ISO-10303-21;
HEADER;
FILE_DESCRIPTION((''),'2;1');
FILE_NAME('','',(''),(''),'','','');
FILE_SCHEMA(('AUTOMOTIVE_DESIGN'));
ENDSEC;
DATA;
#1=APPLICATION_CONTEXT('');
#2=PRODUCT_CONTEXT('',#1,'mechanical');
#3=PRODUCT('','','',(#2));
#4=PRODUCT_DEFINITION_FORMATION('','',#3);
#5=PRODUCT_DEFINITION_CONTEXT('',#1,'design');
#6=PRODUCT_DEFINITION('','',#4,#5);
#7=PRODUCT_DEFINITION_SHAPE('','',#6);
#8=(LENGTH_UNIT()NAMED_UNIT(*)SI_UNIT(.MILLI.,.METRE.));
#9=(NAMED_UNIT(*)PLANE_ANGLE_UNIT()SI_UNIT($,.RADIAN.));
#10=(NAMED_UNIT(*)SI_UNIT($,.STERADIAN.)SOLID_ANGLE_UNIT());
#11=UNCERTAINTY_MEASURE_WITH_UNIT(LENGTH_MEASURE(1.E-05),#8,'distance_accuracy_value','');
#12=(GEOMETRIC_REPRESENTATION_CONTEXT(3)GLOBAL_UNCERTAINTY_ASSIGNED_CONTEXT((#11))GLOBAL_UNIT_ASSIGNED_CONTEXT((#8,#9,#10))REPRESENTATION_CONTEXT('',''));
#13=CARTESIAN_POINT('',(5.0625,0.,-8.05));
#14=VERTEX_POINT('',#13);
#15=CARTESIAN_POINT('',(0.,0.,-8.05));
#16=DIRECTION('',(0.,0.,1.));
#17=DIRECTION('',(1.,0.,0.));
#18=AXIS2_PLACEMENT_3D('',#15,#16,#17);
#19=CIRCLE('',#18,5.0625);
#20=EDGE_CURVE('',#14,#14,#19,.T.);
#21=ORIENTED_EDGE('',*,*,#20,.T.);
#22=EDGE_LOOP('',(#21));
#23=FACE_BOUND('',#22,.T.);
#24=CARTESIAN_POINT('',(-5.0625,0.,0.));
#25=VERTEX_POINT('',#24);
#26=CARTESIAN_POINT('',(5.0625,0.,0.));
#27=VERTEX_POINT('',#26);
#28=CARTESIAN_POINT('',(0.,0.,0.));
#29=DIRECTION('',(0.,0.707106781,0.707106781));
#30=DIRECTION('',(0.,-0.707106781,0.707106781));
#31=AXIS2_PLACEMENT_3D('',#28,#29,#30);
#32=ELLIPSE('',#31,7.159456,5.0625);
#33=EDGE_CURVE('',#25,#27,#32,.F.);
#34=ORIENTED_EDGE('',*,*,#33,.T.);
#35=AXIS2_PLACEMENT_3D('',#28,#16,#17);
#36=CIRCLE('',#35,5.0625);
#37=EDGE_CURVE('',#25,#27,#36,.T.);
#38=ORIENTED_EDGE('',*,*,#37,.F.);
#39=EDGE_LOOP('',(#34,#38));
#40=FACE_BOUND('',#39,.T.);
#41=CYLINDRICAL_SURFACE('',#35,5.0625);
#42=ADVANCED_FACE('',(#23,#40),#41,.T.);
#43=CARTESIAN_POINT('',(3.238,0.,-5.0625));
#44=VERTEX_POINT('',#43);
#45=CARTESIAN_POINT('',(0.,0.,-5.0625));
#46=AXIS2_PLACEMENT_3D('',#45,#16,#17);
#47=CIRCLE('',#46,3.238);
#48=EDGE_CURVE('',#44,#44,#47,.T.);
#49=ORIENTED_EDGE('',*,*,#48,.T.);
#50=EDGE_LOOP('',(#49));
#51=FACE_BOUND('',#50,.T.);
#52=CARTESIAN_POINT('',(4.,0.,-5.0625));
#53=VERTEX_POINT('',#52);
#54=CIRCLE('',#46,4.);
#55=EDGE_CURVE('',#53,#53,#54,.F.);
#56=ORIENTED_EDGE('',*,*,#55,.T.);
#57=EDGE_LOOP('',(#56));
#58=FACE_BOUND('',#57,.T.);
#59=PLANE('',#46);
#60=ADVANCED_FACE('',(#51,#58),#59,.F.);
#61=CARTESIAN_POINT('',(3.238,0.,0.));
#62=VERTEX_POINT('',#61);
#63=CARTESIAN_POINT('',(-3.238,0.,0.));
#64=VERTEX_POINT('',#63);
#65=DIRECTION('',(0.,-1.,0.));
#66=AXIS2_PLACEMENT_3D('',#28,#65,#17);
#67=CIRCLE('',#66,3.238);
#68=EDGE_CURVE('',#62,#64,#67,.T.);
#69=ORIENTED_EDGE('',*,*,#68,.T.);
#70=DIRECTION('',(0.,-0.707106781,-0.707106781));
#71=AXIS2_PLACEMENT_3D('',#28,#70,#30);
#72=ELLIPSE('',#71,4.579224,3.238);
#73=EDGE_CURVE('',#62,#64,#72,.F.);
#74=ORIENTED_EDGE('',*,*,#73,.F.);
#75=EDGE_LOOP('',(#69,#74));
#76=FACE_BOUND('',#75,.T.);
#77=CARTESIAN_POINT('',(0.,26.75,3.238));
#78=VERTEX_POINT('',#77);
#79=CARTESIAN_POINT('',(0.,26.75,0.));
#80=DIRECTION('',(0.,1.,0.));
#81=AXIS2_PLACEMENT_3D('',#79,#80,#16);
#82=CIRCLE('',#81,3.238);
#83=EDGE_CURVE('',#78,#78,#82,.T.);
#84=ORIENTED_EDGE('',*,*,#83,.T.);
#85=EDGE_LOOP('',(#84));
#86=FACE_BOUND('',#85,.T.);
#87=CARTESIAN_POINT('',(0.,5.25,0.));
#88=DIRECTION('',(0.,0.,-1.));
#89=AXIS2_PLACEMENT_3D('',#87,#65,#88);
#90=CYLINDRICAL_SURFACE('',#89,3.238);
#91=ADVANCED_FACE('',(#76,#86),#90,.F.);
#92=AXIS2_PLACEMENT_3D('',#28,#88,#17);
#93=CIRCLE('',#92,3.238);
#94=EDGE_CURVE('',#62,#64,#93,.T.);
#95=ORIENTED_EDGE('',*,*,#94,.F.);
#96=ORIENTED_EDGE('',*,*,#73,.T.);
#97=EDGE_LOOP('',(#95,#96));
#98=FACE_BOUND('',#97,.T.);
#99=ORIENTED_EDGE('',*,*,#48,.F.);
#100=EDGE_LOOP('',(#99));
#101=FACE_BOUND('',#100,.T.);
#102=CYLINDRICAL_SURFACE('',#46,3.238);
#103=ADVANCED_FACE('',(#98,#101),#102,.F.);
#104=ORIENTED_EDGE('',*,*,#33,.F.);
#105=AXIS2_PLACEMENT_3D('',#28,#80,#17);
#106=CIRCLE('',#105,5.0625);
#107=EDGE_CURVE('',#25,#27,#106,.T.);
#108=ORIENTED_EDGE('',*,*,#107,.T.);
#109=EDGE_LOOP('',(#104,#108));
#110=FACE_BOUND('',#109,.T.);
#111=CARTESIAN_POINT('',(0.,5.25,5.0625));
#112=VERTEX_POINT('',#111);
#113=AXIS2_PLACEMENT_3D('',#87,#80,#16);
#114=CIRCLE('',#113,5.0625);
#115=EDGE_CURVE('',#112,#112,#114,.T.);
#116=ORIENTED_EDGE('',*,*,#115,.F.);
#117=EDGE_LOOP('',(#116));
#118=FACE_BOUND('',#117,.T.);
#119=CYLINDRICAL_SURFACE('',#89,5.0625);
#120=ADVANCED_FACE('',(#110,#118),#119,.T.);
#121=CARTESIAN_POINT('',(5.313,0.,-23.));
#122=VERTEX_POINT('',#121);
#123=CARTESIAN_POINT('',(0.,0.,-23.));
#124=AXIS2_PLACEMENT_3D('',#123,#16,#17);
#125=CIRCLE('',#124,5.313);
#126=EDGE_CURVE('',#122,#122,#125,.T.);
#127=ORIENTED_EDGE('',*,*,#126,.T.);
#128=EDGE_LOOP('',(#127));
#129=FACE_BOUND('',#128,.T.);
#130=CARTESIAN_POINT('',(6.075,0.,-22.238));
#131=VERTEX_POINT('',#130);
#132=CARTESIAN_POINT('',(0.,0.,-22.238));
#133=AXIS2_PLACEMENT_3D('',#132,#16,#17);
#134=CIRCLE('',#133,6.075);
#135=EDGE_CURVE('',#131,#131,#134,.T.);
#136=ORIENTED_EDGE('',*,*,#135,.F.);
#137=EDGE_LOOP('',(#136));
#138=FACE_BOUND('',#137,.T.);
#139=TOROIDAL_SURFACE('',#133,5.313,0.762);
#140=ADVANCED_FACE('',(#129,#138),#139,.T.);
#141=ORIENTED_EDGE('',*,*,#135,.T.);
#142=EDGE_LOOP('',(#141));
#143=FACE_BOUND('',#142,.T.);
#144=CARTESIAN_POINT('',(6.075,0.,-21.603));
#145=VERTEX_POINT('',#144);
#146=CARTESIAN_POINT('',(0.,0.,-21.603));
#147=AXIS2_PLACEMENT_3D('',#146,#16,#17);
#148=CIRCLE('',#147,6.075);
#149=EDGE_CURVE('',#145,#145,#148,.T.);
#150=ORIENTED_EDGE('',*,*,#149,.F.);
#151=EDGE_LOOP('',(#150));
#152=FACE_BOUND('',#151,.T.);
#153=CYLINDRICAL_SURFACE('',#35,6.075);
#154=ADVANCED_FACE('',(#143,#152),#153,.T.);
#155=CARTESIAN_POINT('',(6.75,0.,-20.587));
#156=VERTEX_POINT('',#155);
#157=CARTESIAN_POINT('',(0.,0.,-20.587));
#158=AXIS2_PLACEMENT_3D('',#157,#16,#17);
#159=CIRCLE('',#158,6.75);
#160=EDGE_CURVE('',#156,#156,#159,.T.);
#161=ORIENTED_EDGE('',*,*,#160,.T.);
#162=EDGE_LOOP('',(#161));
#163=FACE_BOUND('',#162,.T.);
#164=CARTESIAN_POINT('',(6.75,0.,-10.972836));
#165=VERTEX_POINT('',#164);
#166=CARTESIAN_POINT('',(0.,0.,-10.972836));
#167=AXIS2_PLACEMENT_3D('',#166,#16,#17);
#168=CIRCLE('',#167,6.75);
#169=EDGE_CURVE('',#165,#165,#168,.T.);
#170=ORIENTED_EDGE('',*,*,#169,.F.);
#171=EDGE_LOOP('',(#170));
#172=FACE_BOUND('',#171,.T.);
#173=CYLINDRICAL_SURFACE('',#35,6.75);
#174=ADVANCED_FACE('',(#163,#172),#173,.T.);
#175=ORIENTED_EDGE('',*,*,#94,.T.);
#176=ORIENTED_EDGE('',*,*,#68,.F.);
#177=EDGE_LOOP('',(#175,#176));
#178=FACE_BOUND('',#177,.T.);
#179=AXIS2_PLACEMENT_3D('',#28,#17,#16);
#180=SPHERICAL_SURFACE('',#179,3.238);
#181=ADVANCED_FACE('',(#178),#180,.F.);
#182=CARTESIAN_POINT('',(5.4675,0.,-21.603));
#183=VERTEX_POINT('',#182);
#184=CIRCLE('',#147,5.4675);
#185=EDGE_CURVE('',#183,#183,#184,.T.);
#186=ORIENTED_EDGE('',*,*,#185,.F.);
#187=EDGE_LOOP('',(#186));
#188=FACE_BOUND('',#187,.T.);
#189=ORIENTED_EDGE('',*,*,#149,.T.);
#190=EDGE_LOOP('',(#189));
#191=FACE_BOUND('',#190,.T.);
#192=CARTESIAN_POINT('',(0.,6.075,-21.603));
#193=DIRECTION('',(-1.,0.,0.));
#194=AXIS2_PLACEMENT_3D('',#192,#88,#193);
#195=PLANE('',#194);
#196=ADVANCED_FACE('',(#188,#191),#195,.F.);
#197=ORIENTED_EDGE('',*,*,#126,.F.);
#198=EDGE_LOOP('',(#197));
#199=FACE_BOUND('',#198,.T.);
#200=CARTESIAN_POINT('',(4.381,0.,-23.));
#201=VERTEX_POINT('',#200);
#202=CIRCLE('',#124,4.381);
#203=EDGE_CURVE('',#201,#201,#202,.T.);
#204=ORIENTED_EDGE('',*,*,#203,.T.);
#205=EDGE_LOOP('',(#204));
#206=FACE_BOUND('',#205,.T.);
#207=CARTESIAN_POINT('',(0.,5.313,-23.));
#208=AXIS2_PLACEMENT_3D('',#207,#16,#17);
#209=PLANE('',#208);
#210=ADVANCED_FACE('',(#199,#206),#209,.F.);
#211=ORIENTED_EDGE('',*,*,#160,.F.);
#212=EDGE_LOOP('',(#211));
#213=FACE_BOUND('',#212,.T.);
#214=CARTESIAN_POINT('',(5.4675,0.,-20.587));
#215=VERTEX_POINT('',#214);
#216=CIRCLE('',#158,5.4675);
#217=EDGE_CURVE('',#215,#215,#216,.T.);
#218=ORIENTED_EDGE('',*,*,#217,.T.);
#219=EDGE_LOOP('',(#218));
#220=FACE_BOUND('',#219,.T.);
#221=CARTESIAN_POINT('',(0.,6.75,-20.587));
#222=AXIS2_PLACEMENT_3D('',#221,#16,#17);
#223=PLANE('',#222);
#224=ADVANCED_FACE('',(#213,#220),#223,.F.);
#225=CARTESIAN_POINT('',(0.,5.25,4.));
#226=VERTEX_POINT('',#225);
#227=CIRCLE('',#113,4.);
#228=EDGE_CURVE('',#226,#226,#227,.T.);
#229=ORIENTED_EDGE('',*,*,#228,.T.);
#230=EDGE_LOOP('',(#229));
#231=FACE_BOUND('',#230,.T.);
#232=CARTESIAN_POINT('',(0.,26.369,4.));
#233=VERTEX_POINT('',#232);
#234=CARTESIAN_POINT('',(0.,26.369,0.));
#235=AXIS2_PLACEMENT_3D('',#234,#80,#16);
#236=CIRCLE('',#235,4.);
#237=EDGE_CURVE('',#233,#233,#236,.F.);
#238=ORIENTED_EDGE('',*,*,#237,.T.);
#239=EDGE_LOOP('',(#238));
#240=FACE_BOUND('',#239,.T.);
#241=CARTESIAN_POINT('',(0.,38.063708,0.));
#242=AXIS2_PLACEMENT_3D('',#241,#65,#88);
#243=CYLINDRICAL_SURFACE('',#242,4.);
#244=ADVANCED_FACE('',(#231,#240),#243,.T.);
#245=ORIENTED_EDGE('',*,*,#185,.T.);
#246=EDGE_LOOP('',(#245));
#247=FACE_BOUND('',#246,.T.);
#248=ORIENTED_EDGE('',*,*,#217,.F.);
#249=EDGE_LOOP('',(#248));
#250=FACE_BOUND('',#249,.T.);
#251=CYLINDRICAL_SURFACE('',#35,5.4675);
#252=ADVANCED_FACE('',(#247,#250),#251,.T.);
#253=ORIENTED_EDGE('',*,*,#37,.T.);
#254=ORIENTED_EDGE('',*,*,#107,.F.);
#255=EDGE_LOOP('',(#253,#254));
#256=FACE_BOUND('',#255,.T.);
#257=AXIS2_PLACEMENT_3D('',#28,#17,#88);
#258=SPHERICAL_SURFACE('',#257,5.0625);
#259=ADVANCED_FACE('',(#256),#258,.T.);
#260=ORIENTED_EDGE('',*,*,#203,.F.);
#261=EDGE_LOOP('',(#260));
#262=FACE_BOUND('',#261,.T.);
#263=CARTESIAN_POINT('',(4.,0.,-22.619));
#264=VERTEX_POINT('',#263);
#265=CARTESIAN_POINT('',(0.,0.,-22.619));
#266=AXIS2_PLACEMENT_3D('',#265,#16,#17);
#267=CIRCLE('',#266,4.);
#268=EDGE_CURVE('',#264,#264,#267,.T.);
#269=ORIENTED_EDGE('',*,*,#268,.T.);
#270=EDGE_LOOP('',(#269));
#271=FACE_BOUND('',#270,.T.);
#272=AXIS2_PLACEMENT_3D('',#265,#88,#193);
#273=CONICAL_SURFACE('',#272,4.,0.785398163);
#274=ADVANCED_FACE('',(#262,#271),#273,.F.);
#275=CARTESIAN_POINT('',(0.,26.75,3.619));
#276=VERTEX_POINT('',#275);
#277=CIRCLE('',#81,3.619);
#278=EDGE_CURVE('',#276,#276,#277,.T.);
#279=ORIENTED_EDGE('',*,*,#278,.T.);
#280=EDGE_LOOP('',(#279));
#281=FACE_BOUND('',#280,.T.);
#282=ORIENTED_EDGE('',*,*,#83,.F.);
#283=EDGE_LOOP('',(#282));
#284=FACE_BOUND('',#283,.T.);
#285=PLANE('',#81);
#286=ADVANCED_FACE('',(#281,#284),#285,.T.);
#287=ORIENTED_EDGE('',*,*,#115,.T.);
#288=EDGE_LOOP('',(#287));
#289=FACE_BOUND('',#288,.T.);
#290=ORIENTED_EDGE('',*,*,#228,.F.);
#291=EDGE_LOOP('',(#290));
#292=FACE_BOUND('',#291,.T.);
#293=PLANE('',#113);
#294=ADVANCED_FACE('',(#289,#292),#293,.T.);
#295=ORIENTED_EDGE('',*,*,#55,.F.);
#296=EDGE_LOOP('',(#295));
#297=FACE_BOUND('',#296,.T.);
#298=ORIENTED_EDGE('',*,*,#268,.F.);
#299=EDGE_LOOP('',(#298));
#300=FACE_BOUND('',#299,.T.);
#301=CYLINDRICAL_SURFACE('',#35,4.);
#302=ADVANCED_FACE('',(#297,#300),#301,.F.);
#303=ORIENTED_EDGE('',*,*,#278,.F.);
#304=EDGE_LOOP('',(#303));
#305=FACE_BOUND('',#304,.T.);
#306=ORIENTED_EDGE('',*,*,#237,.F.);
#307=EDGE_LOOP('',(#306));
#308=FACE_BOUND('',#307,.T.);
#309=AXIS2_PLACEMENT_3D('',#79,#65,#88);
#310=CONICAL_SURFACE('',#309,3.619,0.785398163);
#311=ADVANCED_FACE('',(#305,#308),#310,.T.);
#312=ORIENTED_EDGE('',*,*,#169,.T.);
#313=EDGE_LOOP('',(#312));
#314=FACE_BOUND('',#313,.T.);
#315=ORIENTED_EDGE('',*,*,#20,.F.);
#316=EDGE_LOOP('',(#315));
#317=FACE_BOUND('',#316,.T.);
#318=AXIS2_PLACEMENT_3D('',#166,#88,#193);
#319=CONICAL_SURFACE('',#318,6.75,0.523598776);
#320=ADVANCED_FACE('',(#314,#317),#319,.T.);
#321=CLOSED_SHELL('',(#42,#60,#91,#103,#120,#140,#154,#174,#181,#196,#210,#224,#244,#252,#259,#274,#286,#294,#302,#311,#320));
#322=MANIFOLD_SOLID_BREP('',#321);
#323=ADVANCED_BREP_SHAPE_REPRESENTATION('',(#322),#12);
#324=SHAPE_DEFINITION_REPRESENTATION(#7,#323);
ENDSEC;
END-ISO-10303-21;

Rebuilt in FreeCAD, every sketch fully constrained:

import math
import FreeCAD as App
import Part
import Sketcher

V = App.Vector
Q = App.Units.Quantity


def edges_at(feature, points):
    """Names of the edges that pass closest to the given points."""
    edges = feature.Shape.Edges
    near = lambda p: min(range(len(edges)), key=lambda i: edges[i].distToShape(Part.Vertex(*p))[0])
    return sorted({f"Edge{near(p) + 1}" for p in points})

doc = App.newDocument("Part")
body = doc.addObject("PartDesign::Body", "Body")

# Sketch on YZ plane
sketch1 = body.newObject("Sketcher::SketchObject", "Sketch")
sketch1.AttachmentSupport = (doc.getObject("YZ_Plane"), [""])
sketch1.MapMode = "FlatFace"
sketch1.addGeometry(Part.LineSegment(V(6.1, -22.2, 0), V(6.1, -21.6, 0)), False)
sketch1.addGeometry(Part.LineSegment(V(6.1, -21.6, 0), V(5.5, -21.6, 0)), False)
sketch1.addGeometry(Part.LineSegment(V(5.5, -21.6, 0), V(5.5, -20.6, 0)), False)
sketch1.addGeometry(Part.LineSegment(V(5.5, -20.6, 0), V(6.8, -20.6, 0)), False)
sketch1.addGeometry(Part.LineSegment(V(6.8, -20.6, 0), V(6.8, -11, 0)), False)
sketch1.addGeometry(Part.LineSegment(V(6.8, -11, 0), V(5.1, -8.1, 0)), False)
sketch1.addGeometry(Part.LineSegment(V(5.1, -8.1, 0), V(5.1, 0, 0)), False)
sketch1.addGeometry(Part.LineSegment(V(5.1, 0, 0), V(4, 0, 0)), False)
sketch1.addGeometry(Part.LineSegment(V(4, 0, 0), V(4, -22.6, 0)), False)
sketch1.addGeometry(Part.LineSegment(V(4, -22.6, 0), V(4.4, -23, 0)), False)
sketch1.addGeometry(Part.LineSegment(V(4.4, -23, 0), V(5.3, -23, 0)), False)
sketch1.addGeometry(Part.ArcOfCircle(Part.Circle(V(5.3, -22.2, 0), V(0, 0, 1), 0.8), math.radians(-90), math.radians(0)), False)
sketch1.addConstraint(Sketcher.Constraint("Coincident", 0, 2, 1, 1))
sketch1.addConstraint(Sketcher.Constraint("Coincident", 1, 2, 2, 1))
sketch1.addConstraint(Sketcher.Constraint("Coincident", 2, 2, 3, 1))
sketch1.addConstraint(Sketcher.Constraint("Coincident", 3, 2, 4, 1))
sketch1.addConstraint(Sketcher.Constraint("Coincident", 4, 2, 5, 1))
sketch1.addConstraint(Sketcher.Constraint("Coincident", 5, 2, 6, 1))
sketch1.addConstraint(Sketcher.Constraint("Coincident", 6, 2, 7, 1))
sketch1.addConstraint(Sketcher.Constraint("Coincident", 7, 2, 8, 1))
sketch1.addConstraint(Sketcher.Constraint("Coincident", 8, 2, 9, 1))
sketch1.addConstraint(Sketcher.Constraint("Coincident", 9, 2, 10, 1))
sketch1.addConstraint(Sketcher.Constraint("Tangent", 10, 2, 11, 1))
sketch1.addConstraint(Sketcher.Constraint("Tangent", 11, 2, 0, 1))
sketch1.addConstraint(Sketcher.Constraint("Vertical", 0))
sketch1.addConstraint(Sketcher.Constraint("Horizontal", 1))
sketch1.addConstraint(Sketcher.Constraint("Vertical", 2))
sketch1.addConstraint(Sketcher.Constraint("Horizontal", 3))
sketch1.addConstraint(Sketcher.Constraint("Vertical", 4))
sketch1.addConstraint(Sketcher.Constraint("Vertical", 6))
sketch1.addConstraint(Sketcher.Constraint("Horizontal", 7))
sketch1.addConstraint(Sketcher.Constraint("Vertical", 8))
sketch1.addConstraint(Sketcher.Constraint("Horizontal", 10))
sketch1.addConstraint(Sketcher.Constraint("PointOnObject", 6, 2, -1))
sketch1.addConstraint(Sketcher.Constraint("Radius", 11, Q("0.03 in")))
sketch1.addConstraint(Sketcher.Constraint("Angle", 5, Q("120 deg")))
sketch1.addConstraint(Sketcher.Constraint("Angle", 9, Q("-45 deg")))
sketch1.addConstraint(Sketcher.Constraint("DistanceY", 2, 1, 2, 2, Q("0.04 in")))
sketch1.addConstraint(Sketcher.Constraint("DistanceY", 0, 1, 0, 2, Q("0.025 in")))
sketch1.addConstraint(Sketcher.Constraint("DistanceY", 8, 2, 1, 2, Q("0.04 in")))
sketch1.addConstraint(Sketcher.Constraint("DistanceX", 1, 2, 1, 1, 0.6075))
sketch1.addConstraint(Sketcher.Constraint("DistanceX", 3, 1, 3, 2, 1.2825))
sketch1.addConstraint(Sketcher.Constraint("DistanceX", 7, 2, 7, 1, 1.0625))
sketch1.addConstraint(Sketcher.Constraint("DistanceX", 10, 1, 10, 2, 0.932))
sketch1.addConstraint(Sketcher.Constraint("DistanceY", 6, 1, 6, 2, 8.05))
sketch1.addConstraint(Sketcher.Constraint("DistanceY", 8, 2, 8, 1, 22.619))
sketch1.addConstraint(Sketcher.Constraint("DistanceX", -1, 1, 11, 3, 5.313))
revolution = body.newObject("PartDesign::Revolution", "Revolution")
revolution.Profile = sketch1
revolution.ReferenceAxis = (sketch1, ["V_Axis"])
revolution.Angle = 360

# Sketch on XY plane
sketch2 = body.newObject("Sketcher::SketchObject", "Sketch001")
sketch2.AttachmentSupport = (doc.getObject("XY_Plane"), [""])
sketch2.MapMode = "FlatFace"
sketch2.addGeometry(Part.Circle(V(0, 0, 0), V(0, 0, 1), 4), False)
sketch2.addGeometry(Part.Circle(V(0, 0, 0), V(0, 0, 1), 3.2), False)
sketch2.addConstraint(Sketcher.Constraint("Coincident", 0, 3, -1, 1))
sketch2.addConstraint(Sketcher.Constraint("Coincident", 1, 3, -1, 1))
sketch2.addConstraint(Sketcher.Constraint("Diameter", 0, 8.0))
sketch2.addConstraint(Sketcher.Constraint("Diameter", 1, 6.476))
pad1 = body.newObject("PartDesign::Pad", "Pad")
pad1.Profile = sketch2
pad1.Length = 5.0625
pad1.Reversed = True

# Sketch on XY plane
sketch3 = body.newObject("Sketcher::SketchObject", "Sketch002")
sketch3.AttachmentSupport = (doc.getObject("XY_Plane"), [""])
sketch3.MapMode = "FlatFace"
sketch3.addGeometry(Part.LineSegment(V(-3.2, 0, 0), V(-5.1, 0, 0)), False)
sketch3.addGeometry(Part.ArcOfCircle(Part.Circle(V(0, 0, 0), V(0, 0, 1), 5.1), math.radians(180), math.radians(360)), False)
sketch3.addGeometry(Part.LineSegment(V(5.1, 0, 0), V(3.2, 0, 0)), False)
sketch3.addGeometry(Part.ArcOfCircle(Part.Circle(V(0, 0, 0), V(0, 0, 1), 3.2), math.radians(180), math.radians(360)), False)
sketch3.addConstraint(Sketcher.Constraint("Coincident", 0, 2, 1, 1))
sketch3.addConstraint(Sketcher.Constraint("Coincident", 1, 2, 2, 1))
sketch3.addConstraint(Sketcher.Constraint("Coincident", 2, 2, 3, 2))
sketch3.addConstraint(Sketcher.Constraint("Coincident", 3, 1, 0, 1))
sketch3.addConstraint(Sketcher.Constraint("Horizontal", 0))
sketch3.addConstraint(Sketcher.Constraint("Horizontal", 2))
sketch3.addConstraint(Sketcher.Constraint("Coincident", 1, 3, -1, 1))
sketch3.addConstraint(Sketcher.Constraint("Coincident", 3, 3, -1, 1))
sketch3.addConstraint(Sketcher.Constraint("PointOnObject", 0, 2, -1))
sketch3.addConstraint(Sketcher.Constraint("PointOnObject", 1, 2, -1))
sketch3.addConstraint(Sketcher.Constraint("Radius", 1, 5.0625))
sketch3.addConstraint(Sketcher.Constraint("Radius", 3, 3.238))
revolution2 = body.newObject("PartDesign::Revolution", "Revolution001")
revolution2.Profile = sketch3
revolution2.ReferenceAxis = (sketch3, ["H_Axis"])
revolution2.Angle = 90
revolution2.Reversed = True

# Sketch on XZ plane
sketch4 = body.newObject("Sketcher::SketchObject", "Sketch003")
sketch4.AttachmentSupport = (doc.getObject("XZ_Plane"), [""])
sketch4.MapMode = "FlatFace"
sketch4.addGeometry(Part.LineSegment(V(5.1, 0, 0), V(3.2, 0, 0)), False)
sketch4.addGeometry(Part.ArcOfCircle(Part.Circle(V(0, 0, 0), V(0, 0, 1), 3.2), math.radians(0), math.radians(180)), False)
sketch4.addGeometry(Part.LineSegment(V(-3.2, 0, 0), V(-5.1, 0, 0)), False)
sketch4.addGeometry(Part.ArcOfCircle(Part.Circle(V(0, 0, 0), V(0, 0, 1), 5.1), math.radians(0), math.radians(180)), False)
sketch4.addConstraint(Sketcher.Constraint("Coincident", 0, 2, 1, 1))
sketch4.addConstraint(Sketcher.Constraint("Coincident", 1, 2, 2, 1))
sketch4.addConstraint(Sketcher.Constraint("Coincident", 2, 2, 3, 2))
sketch4.addConstraint(Sketcher.Constraint("Coincident", 3, 1, 0, 1))
sketch4.addConstraint(Sketcher.Constraint("Horizontal", 0))
sketch4.addConstraint(Sketcher.Constraint("Horizontal", 2))
sketch4.addConstraint(Sketcher.Constraint("Coincident", 1, 3, -1, 1))
sketch4.addConstraint(Sketcher.Constraint("Coincident", 3, 3, -1, 1))
sketch4.addConstraint(Sketcher.Constraint("PointOnObject", 0, 2, -1))
sketch4.addConstraint(Sketcher.Constraint("PointOnObject", 1, 2, -1))
sketch4.addConstraint(Sketcher.Constraint("Radius", 1, 3.238))
sketch4.addConstraint(Sketcher.Constraint("Radius", 3, 5.0625))
pad2 = body.newObject("PartDesign::Pad", "Pad001")
pad2.Profile = sketch4
pad2.Length = 5.25
pad2.Reversed = True

# Sketch on XZ plane
sketch5 = body.newObject("Sketcher::SketchObject", "Sketch004")
sketch5.AttachmentSupport = (doc.getObject("XZ_Plane"), [""])
sketch5.MapMode = "FlatFace"
sketch5.addGeometry(Part.Circle(V(0, 0, 0), V(0, 0, 1), 5.1), False)
sketch5.addGeometry(Part.Circle(V(0, 0, 0), V(0, 0, 1), 3.2), False)
sketch5.addConstraint(Sketcher.Constraint("Coincident", 0, 3, -1, 1))
sketch5.addConstraint(Sketcher.Constraint("Coincident", 1, 3, -1, 1))
sketch5.addConstraint(Sketcher.Constraint("Diameter", 0, 10.125))
sketch5.addConstraint(Sketcher.Constraint("Diameter", 1, 6.476))
pad3 = body.newObject("PartDesign::Pad", "Pad002")
pad3.Profile = sketch5
pad3.Length = 5.25
pad3.Reversed = True

# Sketch on XZ plane
sketch6 = body.newObject("Sketcher::SketchObject", "Sketch005")
sketch6.AttachmentSupport = (doc.getObject("XZ_Plane"), [""])
sketch6.MapMode = "FlatFace"
sketch6.addGeometry(Part.Circle(V(0, 0, 0), V(0, 0, 1), 3.2), False)
sketch6.addConstraint(Sketcher.Constraint("Coincident", 0, 3, -1, 1))
sketch6.addConstraint(Sketcher.Constraint("Diameter", 0, 6.476))
pocket1 = body.newObject("PartDesign::Pocket", "Pocket")
pocket1.Profile = sketch6
pocket1.Type = "ThroughAll"

# Sketch on XY plane
sketch7 = body.newObject("Sketcher::SketchObject", "Sketch006")
sketch7.AttachmentSupport = (doc.getObject("XY_Plane"), [""])
sketch7.MapMode = "FlatFace"
sketch7.addGeometry(Part.Circle(V(0, 0, 0), V(0, 0, 1), 3.2), False)
sketch7.addConstraint(Sketcher.Constraint("Coincident", 0, 3, -1, 1))
sketch7.addConstraint(Sketcher.Constraint("Diameter", 0, 6.476))
pocket2 = body.newObject("PartDesign::Pocket", "Pocket001")
pocket2.Profile = sketch7
pocket2.Length = 5.0625

# Sketch on XZ plane
sketch8 = body.newObject("Sketcher::SketchObject", "Sketch007")
sketch8.AttachmentSupport = (doc.getObject("XZ_Plane"), [""])
sketch8.MapMode = "FlatFace"
sketch8.AttachmentOffset = App.Placement(V(0, 0, -5.25), App.Rotation())
sketch8.addGeometry(Part.Circle(V(0, 0, 0), V(0, 0, 1), 4), False)
sketch8.addGeometry(Part.Circle(V(0, 0, 0), V(0, 0, 1), 3.2), False)
sketch8.addConstraint(Sketcher.Constraint("Coincident", 0, 3, -1, 1))
sketch8.addConstraint(Sketcher.Constraint("Coincident", 1, 3, -1, 1))
sketch8.addConstraint(Sketcher.Constraint("Diameter", 0, 8.0))
sketch8.addConstraint(Sketcher.Constraint("Diameter", 1, 6.476))
pad4 = body.newObject("PartDesign::Pad", "Pad003")
pad4.Profile = sketch8
pad4.Length = 21.5
pad4.Reversed = True
doc.recompute()

chamfer = body.newObject("PartDesign::Chamfer", "Chamfer")
chamfer.Base = (pad4, edges_at(pad4, [(0, 26.75, -4)]))
chamfer.Size = Q("0.015 in")

doc.recompute()
